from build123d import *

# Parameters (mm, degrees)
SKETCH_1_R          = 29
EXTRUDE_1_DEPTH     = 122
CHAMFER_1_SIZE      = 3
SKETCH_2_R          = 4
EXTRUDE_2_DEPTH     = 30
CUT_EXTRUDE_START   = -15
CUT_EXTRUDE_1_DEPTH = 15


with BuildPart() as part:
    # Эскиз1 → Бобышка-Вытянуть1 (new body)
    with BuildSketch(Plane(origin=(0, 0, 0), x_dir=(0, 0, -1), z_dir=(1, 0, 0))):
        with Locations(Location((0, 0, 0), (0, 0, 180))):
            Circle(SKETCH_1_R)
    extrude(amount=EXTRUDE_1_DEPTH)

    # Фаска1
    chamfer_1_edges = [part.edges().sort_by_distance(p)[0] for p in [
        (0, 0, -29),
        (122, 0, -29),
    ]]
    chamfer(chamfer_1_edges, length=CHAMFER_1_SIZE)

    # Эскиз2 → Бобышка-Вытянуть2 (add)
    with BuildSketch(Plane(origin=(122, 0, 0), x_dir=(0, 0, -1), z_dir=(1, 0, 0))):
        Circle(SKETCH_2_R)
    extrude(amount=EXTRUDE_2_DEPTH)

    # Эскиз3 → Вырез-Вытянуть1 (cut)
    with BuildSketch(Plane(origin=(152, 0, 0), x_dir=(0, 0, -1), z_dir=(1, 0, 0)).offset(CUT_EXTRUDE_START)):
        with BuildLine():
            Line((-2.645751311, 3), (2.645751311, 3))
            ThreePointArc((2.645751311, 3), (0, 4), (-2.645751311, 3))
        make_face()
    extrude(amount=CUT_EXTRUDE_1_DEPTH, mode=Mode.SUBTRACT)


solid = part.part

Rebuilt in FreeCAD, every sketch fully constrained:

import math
import FreeCAD as App
import Part
import Sketcher
Q = App.Units.Quantity


def edges_at(feature, points):
    """Names of the edges that pass closest to the given points."""
    edges = feature.Shape.Edges
    near = lambda p: min(range(len(edges)), key=lambda i: edges[i].distToShape(Part.Vertex(*p))[0])
    return sorted({f"Edge{near(p) + 1}" for p in points})

doc = App.newDocument("Part")
body = doc.addObject("PartDesign::Body", "Body")

sketch1 = doc.addObject("Sketcher::SketchObject", "Sketch")
body.addObject(sketch1)
sketch1.AttachmentSupport = (doc.YZ_Plane, [""])
sketch1.MapMode = "FlatFace"
sketch1.addGeometry(Part.Circle(App.Vector(0, 0, 0), App.Vector(0, 0, 1), 29), False)
sketch1.addConstraint([
    Sketcher.Constraint("Coincident", 0, 3, -1, 1),
    Sketcher.Constraint("Diameter", 0, Q("58 mm")),
])
pad1 = doc.addObject("PartDesign::Pad", "Pad")
body.addObject(pad1)
pad1.Profile = sketch1
pad1.Length = 122
doc.recompute()

chamfer = doc.addObject("PartDesign::Chamfer", "Chamfer")
body.addObject(chamfer)
chamfer.Base = (pad1, edges_at(pad1, [(0, 0, -29), (122, 0, -29)]))
chamfer.Size = 3

sketch2 = doc.addObject("Sketcher::SketchObject", "Sketch001")
body.addObject(sketch2)
sketch2.AttachmentSupport = (doc.YZ_Plane, [""])
sketch2.MapMode = "FlatFace"
sketch2.AttachmentOffset = App.Placement(App.Vector(0, 0, 122), App.Rotation())
sketch2.addGeometry(Part.Circle(App.Vector(0, 0, 0), App.Vector(0, 0, 1), 4), False)
sketch2.addConstraint([
    Sketcher.Constraint("Coincident", 0, 3, -1, 1),
    Sketcher.Constraint("Diameter", 0, Q("8 mm")),
])
pad2 = doc.addObject("PartDesign::Pad", "Pad001")
body.addObject(pad2)
pad2.Profile = sketch2
pad2.Length = 30

sketch3 = doc.addObject("Sketcher::SketchObject", "Sketch002")
body.addObject(sketch3)
sketch3.AttachmentSupport = (doc.YZ_Plane, [""])
sketch3.MapMode = "FlatFace"
sketch3.AttachmentOffset = App.Placement(App.Vector(0, 0, 137), App.Rotation())
sketch3.addGeometry([
    Part.LineSegment(App.Vector(3, 2.6, 0), App.Vector(3, -2.6, 0)),
    Part.ArcOfCircle(Part.Circle(App.Vector(0, 0, 0), App.Vector(0, 0, 1), 4), math.radians(-41), math.radians(41)),
], False)
sketch3.addConstraint([
    Sketcher.Constraint("Coincident", 0, 1, 1, 2),
    Sketcher.Constraint("Coincident", 1, 1, 0, 2),
    Sketcher.Constraint("Vertical", 0),
    Sketcher.Constraint("Coincident", 1, 3, -1, 1),
    Sketcher.Constraint("Radius", 1, Q("4 mm")),
    Sketcher.Constraint("DistanceX", -1, 1, 0, 1, Q("3 mm")),
])
pocket1 = doc.addObject("PartDesign::Pocket", "Pocket")
body.addObject(pocket1)
pocket1.Profile = sketch3
pocket1.Length = 15
pocket1.Reversed = True

doc.recompute()
